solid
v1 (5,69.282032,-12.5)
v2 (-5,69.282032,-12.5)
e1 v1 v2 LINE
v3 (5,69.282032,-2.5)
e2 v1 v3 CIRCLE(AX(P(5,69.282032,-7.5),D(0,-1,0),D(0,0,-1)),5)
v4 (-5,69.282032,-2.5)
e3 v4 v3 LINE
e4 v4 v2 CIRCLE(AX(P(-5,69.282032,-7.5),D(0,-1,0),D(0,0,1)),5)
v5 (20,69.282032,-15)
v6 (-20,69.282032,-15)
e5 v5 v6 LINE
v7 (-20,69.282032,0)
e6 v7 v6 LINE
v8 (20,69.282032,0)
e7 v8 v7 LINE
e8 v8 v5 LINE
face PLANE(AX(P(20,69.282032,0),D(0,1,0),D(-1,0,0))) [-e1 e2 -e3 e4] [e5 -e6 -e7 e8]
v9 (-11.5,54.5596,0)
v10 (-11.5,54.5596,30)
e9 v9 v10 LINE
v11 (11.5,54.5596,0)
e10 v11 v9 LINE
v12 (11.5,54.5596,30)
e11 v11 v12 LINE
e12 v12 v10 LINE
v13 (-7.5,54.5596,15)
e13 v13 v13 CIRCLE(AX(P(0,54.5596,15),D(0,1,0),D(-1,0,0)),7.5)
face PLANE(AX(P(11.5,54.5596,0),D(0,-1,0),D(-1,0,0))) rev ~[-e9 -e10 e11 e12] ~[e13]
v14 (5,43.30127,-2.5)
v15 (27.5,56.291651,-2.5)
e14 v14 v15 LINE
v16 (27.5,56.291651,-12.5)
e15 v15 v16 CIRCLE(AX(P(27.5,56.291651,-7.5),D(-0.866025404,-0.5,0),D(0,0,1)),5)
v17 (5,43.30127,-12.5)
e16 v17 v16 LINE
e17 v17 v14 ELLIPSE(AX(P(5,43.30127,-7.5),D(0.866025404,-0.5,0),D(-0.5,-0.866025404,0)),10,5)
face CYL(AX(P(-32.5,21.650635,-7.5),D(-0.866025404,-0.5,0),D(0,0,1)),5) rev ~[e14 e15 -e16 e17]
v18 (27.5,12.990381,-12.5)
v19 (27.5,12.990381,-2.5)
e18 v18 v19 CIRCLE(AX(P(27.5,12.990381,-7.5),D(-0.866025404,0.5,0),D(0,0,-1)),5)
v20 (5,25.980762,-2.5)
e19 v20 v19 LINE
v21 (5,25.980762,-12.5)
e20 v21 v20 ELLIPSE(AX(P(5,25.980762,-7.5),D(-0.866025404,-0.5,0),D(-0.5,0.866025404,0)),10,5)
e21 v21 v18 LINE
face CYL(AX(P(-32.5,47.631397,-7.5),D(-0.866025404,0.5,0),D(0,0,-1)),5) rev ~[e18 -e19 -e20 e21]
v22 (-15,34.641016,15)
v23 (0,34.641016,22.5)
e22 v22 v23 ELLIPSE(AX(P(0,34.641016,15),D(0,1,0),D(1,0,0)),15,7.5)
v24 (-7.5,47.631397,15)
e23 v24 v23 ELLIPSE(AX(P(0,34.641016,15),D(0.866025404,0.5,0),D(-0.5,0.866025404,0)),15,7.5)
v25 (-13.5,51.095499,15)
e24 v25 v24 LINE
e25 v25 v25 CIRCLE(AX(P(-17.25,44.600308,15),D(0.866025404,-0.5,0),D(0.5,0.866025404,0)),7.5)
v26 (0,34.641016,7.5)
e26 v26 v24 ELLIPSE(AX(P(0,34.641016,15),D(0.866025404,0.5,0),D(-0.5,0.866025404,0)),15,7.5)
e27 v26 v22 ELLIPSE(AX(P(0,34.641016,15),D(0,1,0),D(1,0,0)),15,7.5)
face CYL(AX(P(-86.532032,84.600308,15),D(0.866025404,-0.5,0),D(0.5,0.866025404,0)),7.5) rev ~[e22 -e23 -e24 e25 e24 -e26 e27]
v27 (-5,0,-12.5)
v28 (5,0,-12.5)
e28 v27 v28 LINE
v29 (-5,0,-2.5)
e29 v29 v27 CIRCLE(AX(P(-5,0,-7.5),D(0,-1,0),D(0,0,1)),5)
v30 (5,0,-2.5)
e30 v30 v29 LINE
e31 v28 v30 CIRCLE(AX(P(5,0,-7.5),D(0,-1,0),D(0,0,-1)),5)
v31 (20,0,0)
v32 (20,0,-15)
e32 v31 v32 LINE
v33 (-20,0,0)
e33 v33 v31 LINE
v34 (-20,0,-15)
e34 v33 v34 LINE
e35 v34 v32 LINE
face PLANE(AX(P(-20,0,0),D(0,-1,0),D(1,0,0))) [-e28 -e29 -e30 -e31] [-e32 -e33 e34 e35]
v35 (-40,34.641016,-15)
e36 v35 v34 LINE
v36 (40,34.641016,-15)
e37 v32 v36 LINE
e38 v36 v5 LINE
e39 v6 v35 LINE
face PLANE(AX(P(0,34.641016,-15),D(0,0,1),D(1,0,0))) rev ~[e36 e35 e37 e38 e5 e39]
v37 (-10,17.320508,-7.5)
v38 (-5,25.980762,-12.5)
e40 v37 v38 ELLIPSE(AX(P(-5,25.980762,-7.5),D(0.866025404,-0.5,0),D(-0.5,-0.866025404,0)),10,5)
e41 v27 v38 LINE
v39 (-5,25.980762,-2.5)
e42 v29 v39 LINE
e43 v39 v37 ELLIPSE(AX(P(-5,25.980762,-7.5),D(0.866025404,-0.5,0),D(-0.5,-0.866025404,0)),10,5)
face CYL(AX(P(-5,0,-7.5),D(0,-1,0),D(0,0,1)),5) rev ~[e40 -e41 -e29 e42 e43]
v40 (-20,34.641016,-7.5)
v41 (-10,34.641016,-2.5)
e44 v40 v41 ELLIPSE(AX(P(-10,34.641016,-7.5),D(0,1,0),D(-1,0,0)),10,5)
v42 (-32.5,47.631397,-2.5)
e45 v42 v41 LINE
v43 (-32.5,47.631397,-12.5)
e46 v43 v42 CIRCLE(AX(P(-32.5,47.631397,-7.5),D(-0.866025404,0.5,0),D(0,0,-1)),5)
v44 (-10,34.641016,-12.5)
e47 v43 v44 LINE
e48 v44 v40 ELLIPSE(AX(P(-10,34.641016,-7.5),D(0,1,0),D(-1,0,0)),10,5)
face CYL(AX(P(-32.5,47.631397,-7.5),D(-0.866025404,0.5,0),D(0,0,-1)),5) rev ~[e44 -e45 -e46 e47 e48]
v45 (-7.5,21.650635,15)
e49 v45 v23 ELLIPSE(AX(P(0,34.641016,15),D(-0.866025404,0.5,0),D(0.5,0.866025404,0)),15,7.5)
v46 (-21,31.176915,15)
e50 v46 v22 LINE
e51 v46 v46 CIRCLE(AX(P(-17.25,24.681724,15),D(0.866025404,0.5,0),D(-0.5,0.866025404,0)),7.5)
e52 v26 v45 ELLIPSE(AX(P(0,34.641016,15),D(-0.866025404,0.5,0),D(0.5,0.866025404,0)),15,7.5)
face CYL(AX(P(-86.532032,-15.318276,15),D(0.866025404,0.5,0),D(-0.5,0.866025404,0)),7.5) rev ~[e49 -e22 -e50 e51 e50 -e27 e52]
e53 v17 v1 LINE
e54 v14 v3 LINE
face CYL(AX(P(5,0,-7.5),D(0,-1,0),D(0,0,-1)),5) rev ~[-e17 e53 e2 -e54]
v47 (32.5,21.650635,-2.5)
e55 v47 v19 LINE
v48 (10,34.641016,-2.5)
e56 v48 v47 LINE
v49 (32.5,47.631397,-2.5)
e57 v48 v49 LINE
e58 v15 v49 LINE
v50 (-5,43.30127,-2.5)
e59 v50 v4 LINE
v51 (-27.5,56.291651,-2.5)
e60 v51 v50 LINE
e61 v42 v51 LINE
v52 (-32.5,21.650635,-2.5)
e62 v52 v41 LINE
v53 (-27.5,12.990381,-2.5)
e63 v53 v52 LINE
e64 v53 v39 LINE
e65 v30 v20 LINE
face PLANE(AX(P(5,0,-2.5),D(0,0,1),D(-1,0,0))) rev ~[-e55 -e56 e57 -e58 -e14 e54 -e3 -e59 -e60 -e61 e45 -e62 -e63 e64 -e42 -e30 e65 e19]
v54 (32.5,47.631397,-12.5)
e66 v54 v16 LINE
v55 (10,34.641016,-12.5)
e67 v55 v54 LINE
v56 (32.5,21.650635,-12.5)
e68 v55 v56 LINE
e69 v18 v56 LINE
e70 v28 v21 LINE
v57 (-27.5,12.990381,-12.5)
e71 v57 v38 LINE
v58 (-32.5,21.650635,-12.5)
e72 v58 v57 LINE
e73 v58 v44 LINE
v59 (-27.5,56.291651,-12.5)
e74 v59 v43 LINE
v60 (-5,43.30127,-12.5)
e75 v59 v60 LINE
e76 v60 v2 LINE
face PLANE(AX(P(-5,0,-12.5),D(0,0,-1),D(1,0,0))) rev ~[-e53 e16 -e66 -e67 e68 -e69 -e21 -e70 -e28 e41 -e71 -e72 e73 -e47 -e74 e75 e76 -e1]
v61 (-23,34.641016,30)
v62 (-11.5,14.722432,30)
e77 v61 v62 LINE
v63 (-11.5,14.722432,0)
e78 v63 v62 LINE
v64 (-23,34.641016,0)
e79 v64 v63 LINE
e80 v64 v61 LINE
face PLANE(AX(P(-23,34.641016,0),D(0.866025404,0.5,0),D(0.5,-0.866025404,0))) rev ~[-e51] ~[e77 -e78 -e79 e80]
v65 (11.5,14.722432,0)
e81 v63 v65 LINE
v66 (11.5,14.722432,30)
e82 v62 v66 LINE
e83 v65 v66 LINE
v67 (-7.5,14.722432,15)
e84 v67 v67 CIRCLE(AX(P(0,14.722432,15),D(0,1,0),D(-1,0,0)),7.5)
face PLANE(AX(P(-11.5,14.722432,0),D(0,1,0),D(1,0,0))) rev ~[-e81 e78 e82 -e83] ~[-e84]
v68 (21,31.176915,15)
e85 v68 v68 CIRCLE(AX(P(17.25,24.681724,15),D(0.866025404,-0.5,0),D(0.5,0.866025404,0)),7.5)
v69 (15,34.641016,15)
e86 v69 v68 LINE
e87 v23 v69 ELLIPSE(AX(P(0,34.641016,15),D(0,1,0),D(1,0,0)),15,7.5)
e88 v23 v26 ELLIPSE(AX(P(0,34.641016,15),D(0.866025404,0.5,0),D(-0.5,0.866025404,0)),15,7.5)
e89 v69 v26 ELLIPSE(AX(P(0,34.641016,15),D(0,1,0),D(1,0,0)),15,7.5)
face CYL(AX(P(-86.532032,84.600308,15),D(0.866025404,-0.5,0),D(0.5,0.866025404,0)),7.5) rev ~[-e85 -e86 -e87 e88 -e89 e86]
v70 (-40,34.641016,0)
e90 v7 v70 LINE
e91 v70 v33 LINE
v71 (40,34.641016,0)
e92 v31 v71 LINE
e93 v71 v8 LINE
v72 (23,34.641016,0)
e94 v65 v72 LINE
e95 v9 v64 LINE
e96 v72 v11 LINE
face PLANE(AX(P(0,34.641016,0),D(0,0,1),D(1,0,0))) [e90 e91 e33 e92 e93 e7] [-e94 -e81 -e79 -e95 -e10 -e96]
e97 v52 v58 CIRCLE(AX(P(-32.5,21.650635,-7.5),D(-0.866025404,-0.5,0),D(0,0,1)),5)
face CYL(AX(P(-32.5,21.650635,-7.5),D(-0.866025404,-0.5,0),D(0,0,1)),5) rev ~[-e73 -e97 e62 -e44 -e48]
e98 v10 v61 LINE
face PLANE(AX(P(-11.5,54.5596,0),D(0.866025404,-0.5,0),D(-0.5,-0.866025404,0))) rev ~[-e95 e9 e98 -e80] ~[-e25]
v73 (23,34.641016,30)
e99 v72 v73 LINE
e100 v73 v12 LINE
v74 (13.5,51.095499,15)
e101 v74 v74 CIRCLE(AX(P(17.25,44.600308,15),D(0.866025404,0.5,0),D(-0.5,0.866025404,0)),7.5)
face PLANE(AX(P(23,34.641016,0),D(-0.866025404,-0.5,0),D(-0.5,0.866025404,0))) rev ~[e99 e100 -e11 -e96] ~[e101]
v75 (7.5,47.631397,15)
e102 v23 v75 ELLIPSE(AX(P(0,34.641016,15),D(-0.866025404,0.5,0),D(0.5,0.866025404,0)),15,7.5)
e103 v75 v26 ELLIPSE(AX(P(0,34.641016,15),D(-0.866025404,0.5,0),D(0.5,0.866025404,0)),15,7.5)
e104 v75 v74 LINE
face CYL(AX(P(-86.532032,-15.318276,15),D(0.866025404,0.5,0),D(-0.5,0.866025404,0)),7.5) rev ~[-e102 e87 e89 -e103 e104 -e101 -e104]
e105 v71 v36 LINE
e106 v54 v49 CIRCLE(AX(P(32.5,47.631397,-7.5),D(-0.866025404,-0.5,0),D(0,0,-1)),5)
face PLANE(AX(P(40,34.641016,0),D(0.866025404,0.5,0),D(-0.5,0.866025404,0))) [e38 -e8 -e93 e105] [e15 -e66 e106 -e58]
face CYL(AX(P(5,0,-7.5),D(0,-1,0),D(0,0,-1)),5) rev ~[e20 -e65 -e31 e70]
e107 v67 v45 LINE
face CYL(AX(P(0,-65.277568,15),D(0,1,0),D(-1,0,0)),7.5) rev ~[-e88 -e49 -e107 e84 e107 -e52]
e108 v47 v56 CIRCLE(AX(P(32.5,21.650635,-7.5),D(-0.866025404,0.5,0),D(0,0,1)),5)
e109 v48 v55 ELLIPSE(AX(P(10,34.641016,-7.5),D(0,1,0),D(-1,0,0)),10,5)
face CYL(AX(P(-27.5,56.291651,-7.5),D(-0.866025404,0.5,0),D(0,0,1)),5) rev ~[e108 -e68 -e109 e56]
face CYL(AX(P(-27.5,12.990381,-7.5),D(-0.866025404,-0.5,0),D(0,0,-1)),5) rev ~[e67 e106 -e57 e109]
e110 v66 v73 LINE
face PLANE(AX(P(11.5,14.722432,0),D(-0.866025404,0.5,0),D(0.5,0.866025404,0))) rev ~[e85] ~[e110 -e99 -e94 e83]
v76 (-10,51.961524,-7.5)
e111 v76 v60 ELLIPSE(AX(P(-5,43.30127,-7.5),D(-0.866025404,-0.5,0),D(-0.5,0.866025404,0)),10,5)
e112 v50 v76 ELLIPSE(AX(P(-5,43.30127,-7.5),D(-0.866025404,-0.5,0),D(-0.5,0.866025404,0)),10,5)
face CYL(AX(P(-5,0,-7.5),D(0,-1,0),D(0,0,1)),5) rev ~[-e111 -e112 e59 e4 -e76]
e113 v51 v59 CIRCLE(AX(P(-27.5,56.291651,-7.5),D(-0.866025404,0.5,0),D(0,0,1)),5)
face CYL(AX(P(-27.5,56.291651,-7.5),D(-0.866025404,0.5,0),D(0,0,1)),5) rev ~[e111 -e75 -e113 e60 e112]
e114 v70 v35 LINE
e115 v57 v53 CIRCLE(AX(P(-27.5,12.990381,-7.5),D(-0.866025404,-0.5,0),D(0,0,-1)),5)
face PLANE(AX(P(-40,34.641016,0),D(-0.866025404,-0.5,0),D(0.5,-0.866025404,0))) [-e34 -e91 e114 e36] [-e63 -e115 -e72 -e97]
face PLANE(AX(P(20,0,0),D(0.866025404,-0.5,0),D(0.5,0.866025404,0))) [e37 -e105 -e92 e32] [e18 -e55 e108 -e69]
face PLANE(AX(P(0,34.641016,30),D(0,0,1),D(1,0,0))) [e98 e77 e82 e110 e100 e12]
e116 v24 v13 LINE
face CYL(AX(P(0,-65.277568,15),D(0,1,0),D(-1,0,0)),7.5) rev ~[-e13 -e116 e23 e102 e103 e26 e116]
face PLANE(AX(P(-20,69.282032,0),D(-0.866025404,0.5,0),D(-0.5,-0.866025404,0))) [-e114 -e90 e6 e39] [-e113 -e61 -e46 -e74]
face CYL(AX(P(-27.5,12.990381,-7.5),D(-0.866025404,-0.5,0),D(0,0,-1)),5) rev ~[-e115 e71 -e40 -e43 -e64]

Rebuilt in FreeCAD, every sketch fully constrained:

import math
import FreeCAD as App
import Part
import Sketcher
from FreeCAD import Vector
Q = App.Units.Quantity


def add_polygon(sketch, points):
    """Adds a closed chain of lines whose ends are joined by coincident constraints."""
    first, n = sketch.GeometryCount, len(points)
    for a, b in zip(points, points[1:] + points[:1]):
        sketch.addGeometry(Part.LineSegment(App.Vector(*a, 0), App.Vector(*b, 0)), False)
    for i in range(n):
        sketch.addConstraint(Sketcher.Constraint("Coincident", first + i, 2, first + (i + 1) % n, 1))

doc = App.newDocument("Part")
body = doc.addObject("PartDesign::Body", "Body")

# Sketch on XY plane
sketch1 = body.newObject("Sketcher::SketchObject", "Sketch")
sketch1.AttachmentSupport = (doc.getObject("XY_Plane"), [""])
sketch1.MapMode = "FlatFace"
add_polygon(sketch1, [(-20, 0), (20, 0), (40, 35), (20, 69), (-20, 69), (-40, 35)])  # lines 0-5
sketch1.addConstraint(Sketcher.Constraint("Horizontal", 0))
sketch1.addConstraint(Sketcher.Constraint("Horizontal", 3))
sketch1.addConstraint(Sketcher.Constraint("Symmetric", 0, 2, 5, 2, -1, 1))
sketch1.addConstraint(Sketcher.Constraint("Symmetric", 1, 2, 4, 2, -2))
sketch1.addConstraint(Sketcher.Constraint("Parallel", 1, 4))
sketch1.addConstraint(Sketcher.Constraint("Parallel", 2, 5))
sketch1.addConstraint(Sketcher.Constraint("Vertical", 0, 2, 2, 2))
sketch1.addConstraint(Sketcher.Constraint("DistanceX", 0, 1, 0, 2, 40.0))
sketch1.addConstraint(Sketcher.Constraint("Angle", 1, Q("60 deg")))
sketch1.addConstraint(Sketcher.Constraint("Distance", 1, 40.0))
pad1 = body.newObject("PartDesign::Pad", "Pad")
pad1.Profile = sketch1
pad1.Length = 15
pad1.Reversed = True

# Sketch on an angled plane
sketch2 = body.newObject("Sketcher::SketchObject", "Sketch001")
sketch2.Placement = App.Placement(Vector(-45, 25.980762, 0), App.Rotation(Vector(-0.5, -0.866025404, 0), Vector(0, 0, 1), Vector(-0.866025404, 0.5, 0), "ZXY"))
sketch2.addGeometry(Part.ArcOfCircle(Part.Circle(Vector(-25, -8, 0), Vector(0, 0, 1), 5), math.radians(-90), math.radians(90)), False)
sketch2.addGeometry(Part.LineSegment(Vector(-25, -3, 0), Vector(-35, -3, 0)), False)
sketch2.addGeometry(Part.ArcOfCircle(Part.Circle(Vector(-35, -8, 0), Vector(0, 0, 1), 5), math.radians(90), math.radians(270)), False)
sketch2.addGeometry(Part.LineSegment(Vector(-35, -13, 0), Vector(-25, -13, 0)), False)
sketch2.addConstraint(Sketcher.Constraint("Tangent", 0, 2, 1, 1))
sketch2.addConstraint(Sketcher.Constraint("Tangent", 1, 2, 2, 1))
sketch2.addConstraint(Sketcher.Constraint("Tangent", 2, 2, 3, 1))
sketch2.addConstraint(Sketcher.Constraint("Tangent", 3, 2, 0, 1))
sketch2.addConstraint(Sketcher.Constraint("Horizontal", 1))
sketch2.addConstraint(Sketcher.Constraint("Horizontal", 3))
sketch2.addConstraint(Sketcher.Constraint("Radius", 0, 5.0))
sketch2.addConstraint(Sketcher.Constraint("DistanceX", 1, 2, 1, 1, 10.0))
sketch2.addConstraint(Sketcher.Constraint("DistanceX", 0, 3, -1, 1, 25.0))
sketch2.addConstraint(Sketcher.Constraint("DistanceY", 0, 3, -1, 1, 7.5))
pocket1 = body.newObject("PartDesign::Pocket", "Pocket")
pocket1.Profile = sketch2
pocket1.Length = 80

# Sketch on XZ plane
sketch3 = body.newObject("Sketcher::SketchObject", "Sketch002")
sketch3.AttachmentSupport = (doc.getObject("XZ_Plane"), [""])
sketch3.MapMode = "FlatFace"
sketch3.addGeometry(Part.ArcOfCircle(Part.Circle(Vector(5, -8, 0), Vector(0, 0, 1), 5), math.radians(-90), math.radians(90)), False)
sketch3.addGeometry(Part.LineSegment(Vector(5, -2, 0), Vector(-5, -2, 0)), False)
sketch3.addGeometry(Part.ArcOfCircle(Part.Circle(Vector(-5, -8, 0), Vector(0, 0, 1), 5), math.radians(90), math.radians(270)), False)
sketch3.addGeometry(Part.LineSegment(Vector(-5, -12, 0), Vector(5, -12, 0)), False)
sketch3.addConstraint(Sketcher.Constraint("Tangent", 0, 2, 1, 1))
sketch3.addConstraint(Sketcher.Constraint("Tangent", 1, 2, 2, 1))
sketch3.addConstraint(Sketcher.Constraint("Tangent", 2, 2, 3, 1))
sketch3.addConstraint(Sketcher.Constraint("Tangent", 3, 2, 0, 1))
sketch3.addConstraint(Sketcher.Constraint("Horizontal", 1))
sketch3.addConstraint(Sketcher.Constraint("Horizontal", 3))
sketch3.addConstraint(Sketcher.Constraint("Radius", 0, 5.0))
sketch3.addConstraint(Sketcher.Constraint("DistanceX", 1, 2, 1, 1, 10.0))
sketch3.addConstraint(Sketcher.Constraint("DistanceX", -1, 1, 0, 3, 5.0))
sketch3.addConstraint(Sketcher.Constraint("DistanceY", 0, 3, -1, 1, 7.5))
pocket2 = body.newObject("PartDesign::Pocket", "Pocket001")
pocket2.Profile = sketch3
pocket2.Length = 80

# Sketch on an angled plane
sketch4 = body.newObject("Sketcher::SketchObject", "Sketch003")
sketch4.Placement = App.Placement(Vector(-15, -8.660254, 0), App.Rotation(Vector(0.5, -0.866025404, 0), Vector(0, 0, 1), Vector(-0.866025404, -0.5, 0), "ZXY"))
sketch4.addGeometry(Part.ArcOfCircle(Part.Circle(Vector(-35, -8, 0), Vector(0, 0, 1), 5), math.radians(90), math.radians(270)), False)
sketch4.addGeometry(Part.LineSegment(Vector(-35, -13, 0), Vector(-25, -13, 0)), False)
sketch4.addGeometry(Part.ArcOfCircle(Part.Circle(Vector(-25, -8, 0), Vector(0, 0, 1), 5), math.radians(-90), math.radians(90)), False)
sketch4.addGeometry(Part.LineSegment(Vector(-25, -3, 0), Vector(-35, -3, 0)), False)
sketch4.addConstraint(Sketcher.Constraint("Tangent", 0, 2, 1, 1))
sketch4.addConstraint(Sketcher.Constraint("Tangent", 1, 2, 2, 1))
sketch4.addConstraint(Sketcher.Constraint("Tangent", 2, 2, 3, 1))
sketch4.addConstraint(Sketcher.Constraint("Tangent", 3, 2, 0, 1))
sketch4.addConstraint(Sketcher.Constraint("Horizontal", 1))
sketch4.addConstraint(Sketcher.Constraint("Horizontal", 3))
sketch4.addConstraint(Sketcher.Constraint("Radius", 0, 5.0))
sketch4.addConstraint(Sketcher.Constraint("DistanceX", 1, 1, 1, 2, 10.0))
sketch4.addConstraint(Sketcher.Constraint("DistanceX", 0, 3, -1, 1, 35.0))
sketch4.addConstraint(Sketcher.Constraint("DistanceY", 0, 3, -1, 1, 7.5))
pocket3 = body.newObject("PartDesign::Pocket", "Pocket002")
pocket3.Profile = sketch4
pocket3.Length = 80

# Sketch on XY plane
sketch5 = body.newObject("Sketcher::SketchObject", "Sketch004")
sketch5.AttachmentSupport = (doc.getObject("XY_Plane"), [""])
sketch5.MapMode = "FlatFace"
add_polygon(sketch5, [(12, 55), (-12, 55), (-23, 35), (-12, 15), (12, 15), (23, 35)])  # lines 0-5
sketch5.addConstraint(Sketcher.Constraint("Horizontal", 0))
sketch5.addConstraint(Sketcher.Constraint("Horizontal", 3))
sketch5.addConstraint(Sketcher.Constraint("Symmetric", 1, 2, 4, 2, -2))
sketch5.addConstraint(Sketcher.Constraint("Parallel", 1, 4))
sketch5.addConstraint(Sketcher.Constraint("Parallel", 2, 5))
sketch5.addConstraint(Sketcher.Constraint("Vertical", 0, 2, 2, 2))
sketch5.addConstraint(Sketcher.Constraint("Vertical", 3, 2, 5, 2))
sketch5.addConstraint(Sketcher.Constraint("DistanceX", 0, 2, 0, 1, 23.0))
sketch5.addConstraint(Sketcher.Constraint("Angle", 1, Q("-120 deg")))
sketch5.addConstraint(Sketcher.Constraint("Distance", 1, 23.0))
sketch5.addConstraint(Sketcher.Constraint("DistanceY", -1, 1, 0, 2, 54.5596))
pad2 = body.newObject("PartDesign::Pad", "Pad001")
pad2.Profile = sketch5
pad2.Length = 30

# Sketch on XZ plane
sketch6 = body.newObject("Sketcher::SketchObject", "Sketch005")
sketch6.AttachmentSupport = (doc.getObject("XZ_Plane"), [""])
sketch6.MapMode = "FlatFace"
sketch6.AttachmentOffset = App.Placement(Vector(0, 0, -14.722432), App.Rotation())
sketch6.addGeometry(Part.Circle(Vector(0, 15, 0), Vector(0, 0, 1), 8), False)
sketch6.addConstraint(Sketcher.Constraint("PointOnObject", 0, 3, -2))
sketch6.addConstraint(Sketcher.Constraint("Diameter", 0, 15.0))
sketch6.addConstraint(Sketcher.Constraint("DistanceY", -1, 1, 0, 3, 15.0))
doc.recompute()
hole = body.newObject("PartDesign::Hole", "Hole")
hole.Profile = sketch6
hole.ThreadType = "None"
hole.Diameter = 15
hole.DepthType = "Dimension"
hole.Depth = 80
hole.DrillPoint = "Angled"
hole.DrillPointAngle = 118

# Sketch on an angled plane
sketch7 = body.newObject("Sketcher::SketchObject", "Sketch006")
sketch7.Placement = App.Placement(Vector(-2.25, -1.299038, 0), App.Rotation(Vector(0.5, -0.866025404, 0), Vector(0, 0, 1), Vector(-0.866025404, -0.5, 0), "ZXY"))
sketch7.addGeometry(Part.Circle(Vector(-30, 15, 0), Vector(0, 0, 1), 8), False)
sketch7.addConstraint(Sketcher.Constraint("Diameter", 0, 15.0))
sketch7.addConstraint(Sketcher.Constraint("DistanceX", 0, 3, -1, 1, 30.0))
sketch7.addConstraint(Sketcher.Constraint("DistanceY", -1, 1, 0, 3, 15.0))
doc.recompute()
hole2 = body.newObject("PartDesign::Hole", "Hole001")
hole2.Profile = sketch7
hole2.ThreadType = "None"
hole2.Diameter = 15
hole2.DepthType = "Dimension"
hole2.Depth = 80
hole2.DrillPoint = "Angled"
hole2.DrillPointAngle = 118

# Sketch on an angled plane
sketch8 = body.newObject("Sketcher::SketchObject", "Sketch007")
sketch8.Placement = App.Placement(Vector(-32.25, 18.619546, 0), App.Rotation(Vector(-0.5, -0.866025404, 0), Vector(0, 0, 1), Vector(-0.866025404, 0.5, 0), "ZXY"))
sketch8.addGeometry(Part.Circle(Vector(-30, 15, 0), Vector(0, 0, 1), 8), False)
sketch8.addConstraint(Sketcher.Constraint("Diameter", 0, 15.0))
sketch8.addConstraint(Sketcher.Constraint("DistanceX", 0, 3, -1, 1, 30.0))
sketch8.addConstraint(Sketcher.Constraint("DistanceY", -1, 1, 0, 3, 15.0))
doc.recompute()
hole3 = body.newObject("PartDesign::Hole", "Hole002")
hole3.Profile = sketch8
hole3.ThreadType = "None"
hole3.Diameter = 15
hole3.DepthType = "Dimension"
hole3.Depth = 80
hole3.DrillPoint = "Angled"
hole3.DrillPointAngle = 118

doc.recompute()
